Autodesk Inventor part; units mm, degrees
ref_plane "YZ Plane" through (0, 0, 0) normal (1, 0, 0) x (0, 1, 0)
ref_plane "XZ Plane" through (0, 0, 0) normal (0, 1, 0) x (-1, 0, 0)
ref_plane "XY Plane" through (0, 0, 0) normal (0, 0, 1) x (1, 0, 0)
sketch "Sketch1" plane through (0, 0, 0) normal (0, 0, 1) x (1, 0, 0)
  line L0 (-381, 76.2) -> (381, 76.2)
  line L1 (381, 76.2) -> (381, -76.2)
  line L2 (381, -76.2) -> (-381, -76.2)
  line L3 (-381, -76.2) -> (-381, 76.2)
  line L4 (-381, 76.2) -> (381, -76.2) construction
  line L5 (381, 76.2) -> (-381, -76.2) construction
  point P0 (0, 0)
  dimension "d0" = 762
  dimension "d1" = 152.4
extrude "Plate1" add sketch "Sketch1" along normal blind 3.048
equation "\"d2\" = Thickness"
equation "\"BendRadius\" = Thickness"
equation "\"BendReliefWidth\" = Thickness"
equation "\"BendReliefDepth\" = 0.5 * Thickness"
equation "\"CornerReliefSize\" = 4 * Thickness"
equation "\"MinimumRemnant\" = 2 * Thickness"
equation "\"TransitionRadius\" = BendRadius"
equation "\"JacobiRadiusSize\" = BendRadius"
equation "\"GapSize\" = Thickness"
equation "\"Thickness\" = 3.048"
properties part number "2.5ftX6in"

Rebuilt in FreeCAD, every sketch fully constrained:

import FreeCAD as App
import Part
import Sketcher
from FreeCAD import Vector
Q = App.Units.Quantity

doc = App.newDocument("Part")
body = doc.addObject("PartDesign::Body", "Body")

# Sketch on XY plane
sketch1 = body.newObject("Sketcher::SketchObject", "Sketch")
sketch1.AttachmentSupport = (doc.getObject("XY_Plane"), [""])
sketch1.MapMode = "FlatFace"
sketch1.addGeometry(Part.LineSegment(Vector(381, 76, 0), Vector(-381, 76, 0)), False)
sketch1.addGeometry(Part.LineSegment(Vector(-381, 76, 0), Vector(-381, -76, 0)), False)
sketch1.addGeometry(Part.LineSegment(Vector(-381, -76, 0), Vector(381, -76, 0)), False)
sketch1.addGeometry(Part.LineSegment(Vector(381, -76, 0), Vector(381, 76, 0)), False)
sketch1.addConstraint(Sketcher.Constraint("Coincident", 0, 2, 1, 1))
sketch1.addConstraint(Sketcher.Constraint("Coincident", 1, 2, 2, 1))
sketch1.addConstraint(Sketcher.Constraint("Coincident", 2, 2, 3, 1))
sketch1.addConstraint(Sketcher.Constraint("Coincident", 3, 2, 0, 1))
sketch1.addConstraint(Sketcher.Constraint("Horizontal", 0))
sketch1.addConstraint(Sketcher.Constraint("Vertical", 1))
sketch1.addConstraint(Sketcher.Constraint("Horizontal", 2))
sketch1.addConstraint(Sketcher.Constraint("Vertical", 3))
sketch1.addConstraint(Sketcher.Constraint("Symmetric", 0, 2, 2, 2, -1, 1))
sketch1.addConstraint(Sketcher.Constraint("DistanceX", 0, 2, 0, 1, Q("30 in")))
sketch1.addConstraint(Sketcher.Constraint("DistanceY", 1, 2, 1, 1, Q("6 in")))
pad1 = body.newObject("PartDesign::Pad", "Pad")
pad1.Profile = sketch1
pad1.Length = Q("0.12 in")

doc.recompute()
